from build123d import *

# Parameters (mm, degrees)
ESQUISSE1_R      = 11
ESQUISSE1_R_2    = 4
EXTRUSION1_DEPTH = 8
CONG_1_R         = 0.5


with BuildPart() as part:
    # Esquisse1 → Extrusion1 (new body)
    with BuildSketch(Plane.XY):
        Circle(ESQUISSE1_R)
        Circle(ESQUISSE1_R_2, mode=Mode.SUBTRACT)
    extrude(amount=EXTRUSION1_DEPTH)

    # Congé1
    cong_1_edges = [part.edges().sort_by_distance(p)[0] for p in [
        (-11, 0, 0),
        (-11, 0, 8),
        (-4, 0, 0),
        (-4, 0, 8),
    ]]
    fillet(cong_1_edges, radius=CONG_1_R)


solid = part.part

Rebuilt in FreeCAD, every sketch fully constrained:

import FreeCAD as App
import Part
import Sketcher

V = App.Vector


def edges_at(feature, points):
    """Names of the edges that pass closest to the given points."""
    edges = feature.Shape.Edges
    near = lambda p: min(range(len(edges)), key=lambda i: edges[i].distToShape(Part.Vertex(*p))[0])
    return sorted({f"Edge{near(p) + 1}" for p in points})

doc = App.newDocument("Part")
body = doc.addObject("PartDesign::Body", "Body")

sketch1 = doc.addObject("Sketcher::SketchObject", "Sketch")
body.addObject(sketch1)
sketch1.AttachmentSupport = (doc.XY_Plane, [""])
sketch1.MapMode = "FlatFace"
sketch1.addGeometry([
    Part.Circle(V(0, 0, 0), V(0, 0, 1), 11),
    Part.Circle(V(0, 0, 0), V(0, 0, 1), 4),
], False)
sketch1.addConstraint([
    Sketcher.Constraint("Coincident", 0, 3, -1, 1),
    Sketcher.Constraint("Coincident", 1, 3, -1, 1),
    Sketcher.Constraint("Diameter", 0, 22.0),
    Sketcher.Constraint("Diameter", 1, 8.0),
])
pad1 = doc.addObject("PartDesign::Pad", "Pad")
body.addObject(pad1)
pad1.Profile = sketch1
pad1.Length = 8
doc.recompute()

fillet = doc.addObject("PartDesign::Fillet", "Fillet")
body.addObject(fillet)
fillet.Base = (pad1, edges_at(pad1, [
    (-11, 0, 0),
    (-11, 0, 8),
    (-4, 0, 0),
    (-4, 0, 8),
]))
fillet.Radius = 0.5

doc.recompute()
